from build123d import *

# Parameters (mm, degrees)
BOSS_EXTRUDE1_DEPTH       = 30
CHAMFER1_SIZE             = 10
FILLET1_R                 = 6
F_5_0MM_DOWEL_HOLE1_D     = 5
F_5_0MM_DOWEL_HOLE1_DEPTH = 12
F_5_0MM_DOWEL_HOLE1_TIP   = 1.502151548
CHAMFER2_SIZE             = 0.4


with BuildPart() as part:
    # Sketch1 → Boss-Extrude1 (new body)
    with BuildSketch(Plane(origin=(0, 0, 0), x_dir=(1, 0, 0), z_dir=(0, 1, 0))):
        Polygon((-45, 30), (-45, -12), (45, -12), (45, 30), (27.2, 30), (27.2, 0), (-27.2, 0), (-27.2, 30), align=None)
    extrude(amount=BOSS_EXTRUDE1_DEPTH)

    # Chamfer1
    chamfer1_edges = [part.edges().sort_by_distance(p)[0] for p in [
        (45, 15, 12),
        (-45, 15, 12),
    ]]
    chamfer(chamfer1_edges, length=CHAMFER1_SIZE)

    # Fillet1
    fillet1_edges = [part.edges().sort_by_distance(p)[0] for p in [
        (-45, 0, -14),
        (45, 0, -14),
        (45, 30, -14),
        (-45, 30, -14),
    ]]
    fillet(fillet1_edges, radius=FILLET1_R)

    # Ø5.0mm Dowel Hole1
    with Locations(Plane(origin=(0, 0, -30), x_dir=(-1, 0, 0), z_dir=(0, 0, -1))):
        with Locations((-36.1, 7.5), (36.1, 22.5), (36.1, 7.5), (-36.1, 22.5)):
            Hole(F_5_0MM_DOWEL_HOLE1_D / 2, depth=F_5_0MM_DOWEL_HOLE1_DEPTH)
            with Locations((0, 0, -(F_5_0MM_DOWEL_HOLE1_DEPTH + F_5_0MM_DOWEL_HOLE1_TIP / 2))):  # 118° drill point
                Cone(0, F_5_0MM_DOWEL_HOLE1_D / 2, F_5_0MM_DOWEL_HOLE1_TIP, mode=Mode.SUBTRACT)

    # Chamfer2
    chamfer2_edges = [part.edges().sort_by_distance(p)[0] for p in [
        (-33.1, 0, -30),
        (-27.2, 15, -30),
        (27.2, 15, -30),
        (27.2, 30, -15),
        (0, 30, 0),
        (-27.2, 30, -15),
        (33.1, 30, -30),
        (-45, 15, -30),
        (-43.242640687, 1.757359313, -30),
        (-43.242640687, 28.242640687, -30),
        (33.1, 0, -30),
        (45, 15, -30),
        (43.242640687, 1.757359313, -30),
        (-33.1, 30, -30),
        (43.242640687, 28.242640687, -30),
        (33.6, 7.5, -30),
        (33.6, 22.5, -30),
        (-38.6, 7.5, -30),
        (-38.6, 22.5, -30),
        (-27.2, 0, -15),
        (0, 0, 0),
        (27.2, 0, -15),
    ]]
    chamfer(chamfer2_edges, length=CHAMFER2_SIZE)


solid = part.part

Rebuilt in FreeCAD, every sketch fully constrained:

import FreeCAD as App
import Part
import Sketcher


def edges_at(feature, points):
    """Names of the edges that pass closest to the given points."""
    edges = feature.Shape.Edges
    near = lambda p: min(range(len(edges)), key=lambda i: edges[i].distToShape(Part.Vertex(*p))[0])
    return sorted({f"Edge{near(p) + 1}" for p in points})

doc = App.newDocument("Part")
body = doc.addObject("PartDesign::Body", "Body")

# Sketch on XZ plane
sketch1 = doc.addObject("Sketcher::SketchObject", "Sketch")
body.addObject(sketch1)
sketch1.AttachmentSupport = (doc.XZ_Plane, [""])
sketch1.MapMode = "FlatFace"
sketch1.addGeometry([
    Part.LineSegment(App.Vector(-45, -30, 0), App.Vector(-45, 12, 0)),  # 0
    Part.LineSegment(App.Vector(-45, 12, 0), App.Vector(45, 12, 0)),  # 1
    Part.LineSegment(App.Vector(45, 12, 0), App.Vector(45, -30, 0)),  # 2
    Part.LineSegment(App.Vector(45, -30, 0), App.Vector(27, -30, 0)),  # 3
    Part.LineSegment(App.Vector(27, -30, 0), App.Vector(27, 0, 0)),  # 4
    Part.LineSegment(App.Vector(27, 0, 0), App.Vector(-27, 0, 0)),  # 5
    Part.LineSegment(App.Vector(-27, 0, 0), App.Vector(-27, -30, 0)),  # 6
    Part.LineSegment(App.Vector(-27, -30, 0), App.Vector(-45, -30, 0)),  # 7
], False)
sketch1.addConstraint([
    Sketcher.Constraint("Coincident", 0, 2, 1, 1),
    Sketcher.Constraint("Coincident", 1, 2, 2, 1),
    Sketcher.Constraint("Coincident", 2, 2, 3, 1),
    Sketcher.Constraint("Coincident", 3, 2, 4, 1),
    Sketcher.Constraint("Coincident", 4, 2, 5, 1),
    Sketcher.Constraint("Coincident", 5, 2, 6, 1),
    Sketcher.Constraint("Coincident", 6, 2, 7, 1),
    Sketcher.Constraint("Coincident", 7, 2, 0, 1),
    Sketcher.Constraint("Vertical", 0),
    Sketcher.Constraint("Horizontal", 1),
    Sketcher.Constraint("Vertical", 2),
    Sketcher.Constraint("Horizontal", 3),
    Sketcher.Constraint("Vertical", 4),
    Sketcher.Constraint("Horizontal", 5),
    Sketcher.Constraint("Vertical", 6),
    Sketcher.Constraint("Horizontal", 7),
    Sketcher.Constraint("Symmetric", 4, 2, 5, 2, -1, 1),
    Sketcher.Constraint("Symmetric", 2, 2, 7, 2, -2),
    Sketcher.Constraint("DistanceX", 1, 1, 1, 2, 90.0),
    Sketcher.Constraint("DistanceY", 0, 1, 0, 2, 42.0),
    Sketcher.Constraint("DistanceY", 4, 1, 4, 2, 30.0),
    Sketcher.Constraint("DistanceX", 3, 2, 3, 1, 17.8),
])
pad1 = doc.addObject("PartDesign::Pad", "Pad")
body.addObject(pad1)
pad1.Profile = sketch1
pad1.Length = 30
pad1.Reversed = True
doc.recompute()

chamfer = doc.addObject("PartDesign::Chamfer", "Chamfer")
body.addObject(chamfer)
chamfer.Base = (pad1, edges_at(pad1, [(45, 15, 12), (-45, 15, 12)]))
chamfer.Size = 10
doc.recompute()

fillet = doc.addObject("PartDesign::Fillet", "Fillet")
body.addObject(fillet)
fillet.Base = (chamfer, edges_at(chamfer, [
    (-45, 0, -14),
    (45, 0, -14),
    (45, 30, -14),
    (-45, 30, -14),
]))
fillet.Radius = 6

# Sketch on XY plane
sketch2 = doc.addObject("Sketcher::SketchObject", "Sketch001")
body.addObject(sketch2)
sketch2.AttachmentSupport = (doc.XY_Plane, [""])
sketch2.MapMode = "FlatFace"
sketch2.AttachmentOffset = App.Placement(App.Vector(0, 0, -30), App.Rotation())
sketch2.addGeometry([
    Part.Circle(App.Vector(36.1, 7.5, 0), App.Vector(0, 0, 1), 2.5),
    Part.Circle(App.Vector(-36.1, 22.5, 0), App.Vector(0, 0, 1), 2.5),
    Part.Circle(App.Vector(-36.1, 7.5, 0), App.Vector(0, 0, 1), 2.5),
    Part.Circle(App.Vector(36.1, 22.5, 0), App.Vector(0, 0, 1), 2.5),
], False)
sketch2.addConstraint([
    Sketcher.Constraint("Equal", 0, 1),
    Sketcher.Constraint("Equal", 1, 2),
    Sketcher.Constraint("Equal", 2, 3),
    Sketcher.Constraint("Symmetric", 0, 3, 2, 3, -2),
    Sketcher.Constraint("Symmetric", 1, 3, 3, 3, -2),
    Sketcher.Constraint("Vertical", 1, 3, 2, 3),
    Sketcher.Constraint("Diameter", 0, 5.0),
    Sketcher.Constraint("DistanceY", 0, 3, 1, 3, 15.0),
    Sketcher.Constraint("DistanceX", -1, 1, 0, 3, 36.1),
    Sketcher.Constraint("DistanceY", -1, 1, 0, 3, 7.5),
])
doc.recompute()
hole = doc.addObject("PartDesign::Hole", "Hole")
body.addObject(hole)
hole.Profile = sketch2
hole.ThreadType = "None"
hole.Diameter = 5
hole.DepthType = "Dimension"
hole.Depth = 12
hole.DrillPoint = "Angled"
hole.DrillPointAngle = 118
hole.Reversed = True
doc.recompute()

chamfer2 = doc.addObject("PartDesign::Chamfer", "Chamfer001")
body.addObject(chamfer2)
chamfer2.Base = (hole, edges_at(hole, [
    (-33.1, 0, -30),
    (-27.2, 15, -30),
    (27.2, 15, -30),
    (27.2, 30, -15),
    (0, 30, 0),
    (-27.2, 30, -15),
    (33.1, 30, -30),
    (-45, 15, -30),
    (-43.243, 1.757, -30),
    (-43.243, 28.243, -30),
    (33.1, 0, -30),
    (45, 15, -30),
    (43.243, 1.757, -30),
    (-33.1, 30, -30),
    (43.243, 28.243, -30),
    (33.6, 7.5, -30),
    (33.6, 22.5, -30),
    (-38.6, 7.5, -30),
    (-38.6, 22.5, -30),
    (-27.2, 0, -15),
    (0, 0, 0),
    (27.2, 0, -15),
]))
chamfer2.Size = 0.4

doc.recompute()
